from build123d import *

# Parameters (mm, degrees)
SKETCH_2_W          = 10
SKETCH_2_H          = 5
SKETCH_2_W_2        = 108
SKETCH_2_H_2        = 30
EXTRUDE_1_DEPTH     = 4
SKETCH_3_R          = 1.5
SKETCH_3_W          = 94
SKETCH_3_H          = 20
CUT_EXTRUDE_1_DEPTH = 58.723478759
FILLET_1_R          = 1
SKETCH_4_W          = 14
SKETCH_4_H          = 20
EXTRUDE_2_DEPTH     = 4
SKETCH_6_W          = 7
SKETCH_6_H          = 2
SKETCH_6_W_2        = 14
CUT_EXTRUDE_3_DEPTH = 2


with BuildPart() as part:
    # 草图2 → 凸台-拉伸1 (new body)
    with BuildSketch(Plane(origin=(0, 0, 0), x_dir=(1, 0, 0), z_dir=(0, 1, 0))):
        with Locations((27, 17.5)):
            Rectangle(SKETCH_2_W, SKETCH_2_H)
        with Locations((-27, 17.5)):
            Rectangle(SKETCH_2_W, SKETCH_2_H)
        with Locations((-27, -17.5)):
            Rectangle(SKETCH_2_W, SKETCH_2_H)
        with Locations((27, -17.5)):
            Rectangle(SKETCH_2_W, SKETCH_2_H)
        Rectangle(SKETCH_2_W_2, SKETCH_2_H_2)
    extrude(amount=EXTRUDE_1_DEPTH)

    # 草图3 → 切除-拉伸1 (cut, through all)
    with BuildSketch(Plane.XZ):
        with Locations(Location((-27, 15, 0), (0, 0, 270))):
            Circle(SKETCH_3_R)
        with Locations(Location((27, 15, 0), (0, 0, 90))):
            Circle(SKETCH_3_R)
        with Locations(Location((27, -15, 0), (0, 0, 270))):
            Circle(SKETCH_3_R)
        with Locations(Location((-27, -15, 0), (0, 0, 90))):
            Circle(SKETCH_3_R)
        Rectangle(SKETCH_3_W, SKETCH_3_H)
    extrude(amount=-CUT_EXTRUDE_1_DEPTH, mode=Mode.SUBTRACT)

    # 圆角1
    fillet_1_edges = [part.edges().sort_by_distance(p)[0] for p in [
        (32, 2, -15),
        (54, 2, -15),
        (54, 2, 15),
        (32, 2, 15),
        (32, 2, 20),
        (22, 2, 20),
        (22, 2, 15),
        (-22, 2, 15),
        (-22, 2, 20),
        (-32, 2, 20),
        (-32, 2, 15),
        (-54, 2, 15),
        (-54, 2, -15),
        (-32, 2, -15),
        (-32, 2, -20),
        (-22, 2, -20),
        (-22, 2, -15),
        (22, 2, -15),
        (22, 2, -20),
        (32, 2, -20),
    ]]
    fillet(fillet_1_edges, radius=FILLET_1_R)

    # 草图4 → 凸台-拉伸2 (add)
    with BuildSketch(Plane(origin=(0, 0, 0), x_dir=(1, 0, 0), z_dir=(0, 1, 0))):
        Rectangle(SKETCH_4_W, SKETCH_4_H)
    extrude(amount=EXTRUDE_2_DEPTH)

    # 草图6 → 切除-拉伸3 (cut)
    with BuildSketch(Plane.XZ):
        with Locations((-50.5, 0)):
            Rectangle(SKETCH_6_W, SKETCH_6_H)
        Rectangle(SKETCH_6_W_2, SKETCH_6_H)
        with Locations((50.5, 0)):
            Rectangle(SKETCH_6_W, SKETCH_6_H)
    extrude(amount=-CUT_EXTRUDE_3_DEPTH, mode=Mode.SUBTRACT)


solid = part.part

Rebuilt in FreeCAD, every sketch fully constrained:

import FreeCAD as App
import Part
import Sketcher


def edges_at(feature, points):
    """Names of the edges that pass closest to the given points."""
    edges = feature.Shape.Edges
    near = lambda p: min(range(len(edges)), key=lambda i: edges[i].distToShape(Part.Vertex(*p))[0])
    return sorted({f"Edge{near(p) + 1}" for p in points})


def add_polygon(sketch, points):
    """Adds a closed chain of lines whose ends are joined by coincident constraints."""
    first, n = sketch.GeometryCount, len(points)
    for a, b in zip(points, points[1:] + points[:1]):
        sketch.addGeometry(Part.LineSegment(App.Vector(*a, 0), App.Vector(*b, 0)), False)
    for i in range(n):
        sketch.addConstraint(Sketcher.Constraint("Coincident", first + i, 2, first + (i + 1) % n, 1))

doc = App.newDocument("Part")
body = doc.addObject("PartDesign::Body", "Body")

sketch1 = body.newObject("Sketcher::SketchObject", "Sketch")
sketch1.AttachmentSupport = (doc.getObject("XZ_Plane"), [""])
sketch1.MapMode = "FlatFace"
add_polygon(sketch1, [(22, -20), (22, -15), (-22, -15), (-22, -20), (-32, -20), (-32, -15), (-54, -15), (-54, 15), (-32, 15), (-32, 20), (-22, 20), (-22, 15), (22, 15), (22, 20), (32, 20), (32, 15), (54, 15), (54, -15), (32, -15), (32, -20)])
sketch1.addConstraint([
    Sketcher.Constraint("Vertical", 0),
    Sketcher.Constraint("Horizontal", 1),
    Sketcher.Constraint("Vertical", 2),
    Sketcher.Constraint("Horizontal", 3),
    Sketcher.Constraint("Vertical", 4),
    Sketcher.Constraint("Horizontal", 5),
    Sketcher.Constraint("Vertical", 6),
    Sketcher.Constraint("Horizontal", 7),
    Sketcher.Constraint("Vertical", 8),
    Sketcher.Constraint("Horizontal", 9),
    Sketcher.Constraint("Vertical", 10),
    Sketcher.Constraint("Horizontal", 11),
    Sketcher.Constraint("Vertical", 12),
    Sketcher.Constraint("Horizontal", 13),
    Sketcher.Constraint("Vertical", 14),
    Sketcher.Constraint("Horizontal", 15),
    Sketcher.Constraint("Vertical", 16),
    Sketcher.Constraint("Horizontal", 17),
    Sketcher.Constraint("Vertical", 18),
    Sketcher.Constraint("Horizontal", 19),
    Sketcher.Constraint("Symmetric", 0, 2, 10, 2, -1, 1),
    Sketcher.Constraint("Symmetric", 2, 2, 12, 2, -1, 1),
    Sketcher.Constraint("Symmetric", 4, 2, 14, 2, -1, 1),
    Sketcher.Constraint("Symmetric", 6, 2, 16, 2, -1, 1),
    Sketcher.Constraint("Symmetric", 8, 2, 18, 2, -1, 1),
    Sketcher.Constraint("Symmetric", 9, 2, 12, 2, -2),
    Sketcher.Constraint("Symmetric", 7, 2, 14, 2, -2),
    Sketcher.Constraint("Horizontal", 1, 2, 4, 2),
    Sketcher.Constraint("DistanceX", 1, 2, 1, 1, 44.0),
    Sketcher.Constraint("DistanceX", 3, 2, 3, 1, 10.0),
    Sketcher.Constraint("DistanceX", 5, 2, 5, 1, 22.0),
    Sketcher.Constraint("DistanceY", 0, 1, 0, 2, 5.0),
    Sketcher.Constraint("DistanceY", 6, 1, 6, 2, 30.0),
])
pad1 = body.newObject("PartDesign::Pad", "Pad")
pad1.Profile = sketch1
pad1.Length = 4
pad1.Reversed = True

sketch2 = body.newObject("Sketcher::SketchObject", "Sketch001")
sketch2.AttachmentSupport = (doc.getObject("XZ_Plane"), [""])
sketch2.MapMode = "FlatFace"
sketch2.addGeometry(Part.Circle(App.Vector(-27, 15, 0), App.Vector(0, 0, 1), 1.5), False)
sketch2.addGeometry(Part.Circle(App.Vector(27, 15, 0), App.Vector(0, 0, 1), 1.5), False)
sketch2.addGeometry(Part.Circle(App.Vector(27, -15, 0), App.Vector(0, 0, 1), 1.5), False)
sketch2.addGeometry(Part.Circle(App.Vector(-27, -15, 0), App.Vector(0, 0, 1), 1.5), False)
add_polygon(sketch2, [(-47, 10), (-47, -10), (47, -10), (47, 10)])
sketch2.addConstraint([
    Sketcher.Constraint("Vertical", 4),
    Sketcher.Constraint("Horizontal", 5),
    Sketcher.Constraint("Vertical", 6),
    Sketcher.Constraint("Horizontal", 7),
    Sketcher.Constraint("Equal", 0, 1),
    Sketcher.Constraint("Equal", 1, 2),
    Sketcher.Constraint("Equal", 2, 3),
    Sketcher.Constraint("Symmetric", 0, 3, 2, 3, -1, 1),
    Sketcher.Constraint("Symmetric", 1, 3, 3, 3, -1, 1),
    Sketcher.Constraint("Symmetric", 4, 2, 6, 2, -1, 1),
    Sketcher.Constraint("Symmetric", 0, 3, 1, 3, -2),
    Sketcher.Constraint("Diameter", 0, 3.0),
    Sketcher.Constraint("DistanceX", 5, 1, 5, 2, 94.0),
    Sketcher.Constraint("DistanceY", 4, 2, 4, 1, 20.0),
    Sketcher.Constraint("DistanceX", 0, 3, -1, 1, 27.0),
    Sketcher.Constraint("DistanceY", -1, 1, 0, 3, 15.0),
])
pocket1 = body.newObject("PartDesign::Pocket", "Pocket")
pocket1.Profile = sketch2
pocket1.Type = "ThroughAll"
doc.recompute()

fillet = body.newObject("PartDesign::Fillet", "Fillet")
fillet.Base = (pocket1, edges_at(pocket1, [
    (32, 2, -15),
    (54, 2, -15),
    (54, 2, 15),
    (32, 2, 15),
    (32, 2, 20),
    (22, 2, 20),
    (22, 2, 15),
    (-22, 2, 15),
    (-22, 2, 20),
    (-32, 2, 20),
    (-32, 2, 15),
    (-54, 2, 15),
    (-54, 2, -15),
    (-32, 2, -15),
    (-32, 2, -20),
    (-22, 2, -20),
    (-22, 2, -15),
    (22, 2, -15),
    (22, 2, -20),
    (32, 2, -20),
]))
fillet.Radius = 1

sketch3 = body.newObject("Sketcher::SketchObject", "Sketch002")
sketch3.AttachmentSupport = (doc.getObject("XZ_Plane"), [""])
sketch3.MapMode = "FlatFace"
add_polygon(sketch3, [(-7, -10), (-7, 10), (7, 10), (7, -10)])
sketch3.addConstraint([
    Sketcher.Constraint("Vertical", 0),
    Sketcher.Constraint("Horizontal", 1),
    Sketcher.Constraint("Vertical", 2),
    Sketcher.Constraint("Horizontal", 3),
    Sketcher.Constraint("Symmetric", 0, 2, 2, 2, -1, 1),
    Sketcher.Constraint("DistanceX", 1, 1, 1, 2, 14.0),
    Sketcher.Constraint("DistanceY", 0, 1, 0, 2, 20.0),
])
pad2 = body.newObject("PartDesign::Pad", "Pad001")
pad2.Profile = sketch3
pad2.Length = 4
pad2.Reversed = True

sketch4 = body.newObject("Sketcher::SketchObject", "Sketch003")
sketch4.AttachmentSupport = (doc.getObject("XZ_Plane"), [""])
sketch4.MapMode = "FlatFace"
add_polygon(sketch4, [(-54, 1), (-54, -1), (-47, -1), (-47, 1)])
add_polygon(sketch4, [(-7, 1), (-7, -1), (7, -1), (7, 1)])
add_polygon(sketch4, [(47, 1), (47, -1), (54, -1), (54, 1)])
sketch4.addConstraint([
    Sketcher.Constraint("Vertical", 0),
    Sketcher.Constraint("Horizontal", 1),
    Sketcher.Constraint("Vertical", 2),
    Sketcher.Constraint("Horizontal", 3),
    Sketcher.Constraint("Vertical", 4),
    Sketcher.Constraint("Horizontal", 5),
    Sketcher.Constraint("Vertical", 6),
    Sketcher.Constraint("Horizontal", 7),
    Sketcher.Constraint("Vertical", 8),
    Sketcher.Constraint("Horizontal", 9),
    Sketcher.Constraint("Vertical", 10),
    Sketcher.Constraint("Horizontal", 11),
    Sketcher.Constraint("Symmetric", 4, 2, 6, 2, -1, 1),
    Sketcher.Constraint("Symmetric", 2, 2, 8, 2, -1, 1),
    Sketcher.Constraint("Symmetric", 0, 2, 10, 2, -1, 1),
    Sketcher.Constraint("Horizontal", 1, 2, 4, 2),
    Sketcher.Constraint("Horizontal", 3, 2, 6, 2),
    Sketcher.Constraint("DistanceX", 1, 1, 1, 2, 7.0),
    Sketcher.Constraint("DistanceX", 5, 1, 5, 2, 14.0),
    Sketcher.Constraint("DistanceY", 0, 2, 0, 1, 2.0),
    Sketcher.Constraint("DistanceX", 0, 2, -1, 1, 54.0),
])
pocket2 = body.newObject("PartDesign::Pocket", "Pocket001")
pocket2.Profile = sketch4
pocket2.Length = 2

doc.recompute()
